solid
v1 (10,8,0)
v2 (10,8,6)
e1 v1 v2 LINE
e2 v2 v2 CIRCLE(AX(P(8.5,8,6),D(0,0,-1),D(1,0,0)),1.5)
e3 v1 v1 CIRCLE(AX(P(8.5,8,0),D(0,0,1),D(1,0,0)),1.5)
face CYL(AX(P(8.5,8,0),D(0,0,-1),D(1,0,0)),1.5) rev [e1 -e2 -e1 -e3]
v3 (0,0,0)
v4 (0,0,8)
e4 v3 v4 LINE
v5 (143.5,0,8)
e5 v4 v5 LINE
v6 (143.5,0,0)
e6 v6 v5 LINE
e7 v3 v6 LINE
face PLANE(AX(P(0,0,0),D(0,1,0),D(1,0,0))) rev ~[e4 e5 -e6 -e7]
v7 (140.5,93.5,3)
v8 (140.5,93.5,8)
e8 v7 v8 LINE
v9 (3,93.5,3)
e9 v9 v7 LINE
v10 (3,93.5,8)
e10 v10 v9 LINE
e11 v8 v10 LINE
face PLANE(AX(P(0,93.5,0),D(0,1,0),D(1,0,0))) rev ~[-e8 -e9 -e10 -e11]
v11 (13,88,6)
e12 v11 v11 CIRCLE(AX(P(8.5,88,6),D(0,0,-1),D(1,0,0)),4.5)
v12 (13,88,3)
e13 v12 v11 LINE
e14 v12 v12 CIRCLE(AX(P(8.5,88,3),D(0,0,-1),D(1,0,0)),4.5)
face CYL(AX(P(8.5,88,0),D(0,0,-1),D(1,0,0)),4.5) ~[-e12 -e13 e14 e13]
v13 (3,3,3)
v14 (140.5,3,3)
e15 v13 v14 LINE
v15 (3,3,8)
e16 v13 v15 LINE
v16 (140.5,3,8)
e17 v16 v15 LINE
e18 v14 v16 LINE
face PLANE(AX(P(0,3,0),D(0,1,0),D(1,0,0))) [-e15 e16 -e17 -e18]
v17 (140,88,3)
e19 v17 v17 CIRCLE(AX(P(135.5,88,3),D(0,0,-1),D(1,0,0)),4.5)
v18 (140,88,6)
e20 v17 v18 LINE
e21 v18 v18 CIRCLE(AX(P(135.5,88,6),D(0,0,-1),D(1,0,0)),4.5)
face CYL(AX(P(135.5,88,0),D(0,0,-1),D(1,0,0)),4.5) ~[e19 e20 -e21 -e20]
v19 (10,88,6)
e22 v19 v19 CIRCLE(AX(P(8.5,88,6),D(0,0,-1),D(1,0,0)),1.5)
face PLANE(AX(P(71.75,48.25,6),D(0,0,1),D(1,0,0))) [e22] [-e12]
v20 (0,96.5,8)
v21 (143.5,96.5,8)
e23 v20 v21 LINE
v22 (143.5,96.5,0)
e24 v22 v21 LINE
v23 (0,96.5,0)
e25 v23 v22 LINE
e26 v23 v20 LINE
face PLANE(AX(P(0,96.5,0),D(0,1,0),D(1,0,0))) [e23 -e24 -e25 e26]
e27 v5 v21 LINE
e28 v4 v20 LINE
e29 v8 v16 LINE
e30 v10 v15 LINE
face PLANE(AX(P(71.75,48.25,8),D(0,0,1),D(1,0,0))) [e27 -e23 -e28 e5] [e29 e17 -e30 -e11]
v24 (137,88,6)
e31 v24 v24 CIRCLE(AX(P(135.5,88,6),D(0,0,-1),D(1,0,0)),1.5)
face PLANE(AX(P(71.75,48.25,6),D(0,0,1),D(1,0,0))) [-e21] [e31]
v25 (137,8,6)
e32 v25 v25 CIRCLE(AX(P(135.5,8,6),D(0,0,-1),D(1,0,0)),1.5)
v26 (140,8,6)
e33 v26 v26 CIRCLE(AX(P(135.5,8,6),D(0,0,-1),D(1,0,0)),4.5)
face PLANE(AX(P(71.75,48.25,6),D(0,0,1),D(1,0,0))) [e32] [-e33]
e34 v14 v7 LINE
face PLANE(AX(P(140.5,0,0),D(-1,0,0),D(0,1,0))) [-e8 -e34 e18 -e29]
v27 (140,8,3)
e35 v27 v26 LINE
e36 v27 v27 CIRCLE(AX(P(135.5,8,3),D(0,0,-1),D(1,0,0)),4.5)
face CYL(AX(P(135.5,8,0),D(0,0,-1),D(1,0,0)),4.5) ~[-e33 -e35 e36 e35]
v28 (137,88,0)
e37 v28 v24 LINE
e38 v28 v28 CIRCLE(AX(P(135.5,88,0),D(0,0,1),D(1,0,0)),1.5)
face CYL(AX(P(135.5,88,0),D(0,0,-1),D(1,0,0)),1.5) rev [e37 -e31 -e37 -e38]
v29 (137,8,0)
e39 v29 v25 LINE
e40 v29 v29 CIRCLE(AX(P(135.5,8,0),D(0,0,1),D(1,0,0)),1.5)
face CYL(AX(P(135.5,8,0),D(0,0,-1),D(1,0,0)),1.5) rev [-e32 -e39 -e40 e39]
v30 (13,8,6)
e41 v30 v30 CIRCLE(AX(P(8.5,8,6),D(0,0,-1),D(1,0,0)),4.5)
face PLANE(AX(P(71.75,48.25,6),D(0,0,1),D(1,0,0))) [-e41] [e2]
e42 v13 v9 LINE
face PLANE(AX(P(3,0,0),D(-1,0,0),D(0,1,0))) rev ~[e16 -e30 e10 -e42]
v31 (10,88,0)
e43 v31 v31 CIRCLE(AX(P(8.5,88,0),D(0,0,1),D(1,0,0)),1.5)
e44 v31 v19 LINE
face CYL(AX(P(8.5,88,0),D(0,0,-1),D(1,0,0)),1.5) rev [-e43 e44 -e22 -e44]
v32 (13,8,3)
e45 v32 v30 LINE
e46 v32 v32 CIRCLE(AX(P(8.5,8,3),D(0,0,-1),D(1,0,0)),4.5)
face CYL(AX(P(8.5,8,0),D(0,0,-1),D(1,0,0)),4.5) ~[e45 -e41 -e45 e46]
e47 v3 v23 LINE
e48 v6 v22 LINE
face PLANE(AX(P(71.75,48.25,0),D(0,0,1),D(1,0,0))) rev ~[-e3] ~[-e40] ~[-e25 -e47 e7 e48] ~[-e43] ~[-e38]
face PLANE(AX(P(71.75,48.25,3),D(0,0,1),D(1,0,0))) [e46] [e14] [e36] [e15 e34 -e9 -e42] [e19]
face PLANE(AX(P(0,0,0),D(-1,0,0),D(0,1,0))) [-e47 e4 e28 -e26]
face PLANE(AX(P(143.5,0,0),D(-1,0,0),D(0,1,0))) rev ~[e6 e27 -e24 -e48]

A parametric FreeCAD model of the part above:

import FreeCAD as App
import Part
import Sketcher

V = App.Vector
Q = App.Units.Quantity


def faces_at(feature, points):
    """Names of the faces that lie closest to the given points."""
    faces = feature.Shape.Faces
    near = lambda p: min(range(len(faces)), key=lambda i: faces[i].distToShape(Part.Vertex(*p))[0])
    return sorted({f"Face{near(p) + 1}" for p in points})

doc = App.newDocument("Part")
body = doc.addObject("PartDesign::Body", "Body")

# Sketch on XY plane
sketch1 = body.newObject("Sketcher::SketchObject", "Sketch")
sketch1.AttachmentSupport = (doc.getObject("XY_Plane"), [""])
sketch1.MapMode = "FlatFace"
sketch1.addGeometry([
    Part.LineSegment(V(0, 96.5, 0), V(0, 0, 0)),  # 0
    Part.LineSegment(V(0, 0, 0), V(143.5, 0, 0)),  # 1
    Part.LineSegment(V(143.5, 0, 0), V(143.5, 96.5, 0)),  # 2
    Part.LineSegment(V(143.5, 96.5, 0), V(0, 96.5, 0)),  # 3
    Part.Circle(V(8.5, 8, 0), V(0, 0, 1), 1.5),  # 4
    Part.Circle(V(135.5, 8, 0), V(0, 0, 1), 1.5),  # 5
    Part.Circle(V(8.5, 88, 0), V(0, 0, 1), 1.5),  # 6
    Part.Circle(V(135.5, 88, 0), V(0, 0, 1), 1.5),  # 7
], False)
sketch1.addConstraint([
    Sketcher.Constraint("Coincident", 0, 2, 1, 1),
    Sketcher.Constraint("Coincident", 1, 2, 2, 1),
    Sketcher.Constraint("Coincident", 2, 2, 3, 1),
    Sketcher.Constraint("Coincident", 3, 2, 0, 1),
    Sketcher.Constraint("Vertical", 0),
    Sketcher.Constraint("Horizontal", 1),
    Sketcher.Constraint("Vertical", 2),
    Sketcher.Constraint("Horizontal", 3),
    Sketcher.Constraint("Coincident", 0, 2, -1, 1),
    Sketcher.Constraint("Equal", 4, 5),
    Sketcher.Constraint("Equal", 5, 6),
    Sketcher.Constraint("Equal", 6, 7),
    Sketcher.Constraint("Horizontal", 4, 3, 5, 3),
    Sketcher.Constraint("Horizontal", 6, 3, 7, 3),
    Sketcher.Constraint("Vertical", 4, 3, 6, 3),
    Sketcher.Constraint("Vertical", 5, 3, 7, 3),
    Sketcher.Constraint("Diameter", 4, Q("3 mm")),
    Sketcher.Constraint("DistanceX", 1, 1, 1, 2, Q("143.5 mm")),
    Sketcher.Constraint("DistanceY", 0, 2, 0, 1, Q("96.5 mm")),
    Sketcher.Constraint("DistanceY", -1, 1, 4, 3, Q("8 mm")),
    Sketcher.Constraint("DistanceY", -1, 1, 6, 3, Q("88 mm")),
    Sketcher.Constraint("DistanceX", 4, 3, 5, 3, Q("127 mm")),
    Sketcher.Constraint("DistanceX", 5, 3, 1, 2, Q("8 mm")),
])
pad1 = body.newObject("PartDesign::Pad", "Pad")
pad1.Profile = sketch1
pad1.Length = 8
doc.recompute()

thickness = body.newObject("PartDesign::Thickness", "Thickness")
thickness.Base = (pad1, faces_at(pad1, [(71.75, 48.25, 8)]))
thickness.Value = 3
thickness.Reversed = True
thickness.Join = "Intersection"

# Sketch on XY plane
sketch2 = body.newObject("Sketcher::SketchObject", "Sketch001")
sketch2.AttachmentSupport = (doc.getObject("XY_Plane"), [""])
sketch2.MapMode = "FlatFace"
sketch2.AttachmentOffset = App.Placement(V(0, 0, 8), App.Rotation())
sketch2.addGeometry([
    Part.LineSegment(V(3, 94, 0), V(3, 3, 0)),
    Part.LineSegment(V(3, 3, 0), V(140, 3, 0)),
    Part.LineSegment(V(140, 3, 0), V(140, 94, 0)),
    Part.LineSegment(V(140, 94, 0), V(3, 94, 0)),
], False)
sketch2.addConstraint([
    Sketcher.Constraint("Coincident", 0, 2, 1, 1),
    Sketcher.Constraint("Coincident", 1, 2, 2, 1),
    Sketcher.Constraint("Coincident", 2, 2, 3, 1),
    Sketcher.Constraint("Coincident", 3, 2, 0, 1),
    Sketcher.Constraint("Vertical", 0),
    Sketcher.Constraint("Horizontal", 1),
    Sketcher.Constraint("Vertical", 2),
    Sketcher.Constraint("Horizontal", 3),
    Sketcher.Constraint("DistanceX", 1, 1, 1, 2, Q("137.5 mm")),
    Sketcher.Constraint("DistanceY", 0, 2, 0, 1, Q("90.5 mm")),
    Sketcher.Constraint("DistanceX", -1, 1, 0, 2, Q("3 mm")),
    Sketcher.Constraint("DistanceY", -1, 1, 0, 2, Q("3 mm")),
])
pocket1 = body.newObject("PartDesign::Pocket", "Pocket")
pocket1.Profile = sketch2
pocket1.Length = 2

doc.recompute()
